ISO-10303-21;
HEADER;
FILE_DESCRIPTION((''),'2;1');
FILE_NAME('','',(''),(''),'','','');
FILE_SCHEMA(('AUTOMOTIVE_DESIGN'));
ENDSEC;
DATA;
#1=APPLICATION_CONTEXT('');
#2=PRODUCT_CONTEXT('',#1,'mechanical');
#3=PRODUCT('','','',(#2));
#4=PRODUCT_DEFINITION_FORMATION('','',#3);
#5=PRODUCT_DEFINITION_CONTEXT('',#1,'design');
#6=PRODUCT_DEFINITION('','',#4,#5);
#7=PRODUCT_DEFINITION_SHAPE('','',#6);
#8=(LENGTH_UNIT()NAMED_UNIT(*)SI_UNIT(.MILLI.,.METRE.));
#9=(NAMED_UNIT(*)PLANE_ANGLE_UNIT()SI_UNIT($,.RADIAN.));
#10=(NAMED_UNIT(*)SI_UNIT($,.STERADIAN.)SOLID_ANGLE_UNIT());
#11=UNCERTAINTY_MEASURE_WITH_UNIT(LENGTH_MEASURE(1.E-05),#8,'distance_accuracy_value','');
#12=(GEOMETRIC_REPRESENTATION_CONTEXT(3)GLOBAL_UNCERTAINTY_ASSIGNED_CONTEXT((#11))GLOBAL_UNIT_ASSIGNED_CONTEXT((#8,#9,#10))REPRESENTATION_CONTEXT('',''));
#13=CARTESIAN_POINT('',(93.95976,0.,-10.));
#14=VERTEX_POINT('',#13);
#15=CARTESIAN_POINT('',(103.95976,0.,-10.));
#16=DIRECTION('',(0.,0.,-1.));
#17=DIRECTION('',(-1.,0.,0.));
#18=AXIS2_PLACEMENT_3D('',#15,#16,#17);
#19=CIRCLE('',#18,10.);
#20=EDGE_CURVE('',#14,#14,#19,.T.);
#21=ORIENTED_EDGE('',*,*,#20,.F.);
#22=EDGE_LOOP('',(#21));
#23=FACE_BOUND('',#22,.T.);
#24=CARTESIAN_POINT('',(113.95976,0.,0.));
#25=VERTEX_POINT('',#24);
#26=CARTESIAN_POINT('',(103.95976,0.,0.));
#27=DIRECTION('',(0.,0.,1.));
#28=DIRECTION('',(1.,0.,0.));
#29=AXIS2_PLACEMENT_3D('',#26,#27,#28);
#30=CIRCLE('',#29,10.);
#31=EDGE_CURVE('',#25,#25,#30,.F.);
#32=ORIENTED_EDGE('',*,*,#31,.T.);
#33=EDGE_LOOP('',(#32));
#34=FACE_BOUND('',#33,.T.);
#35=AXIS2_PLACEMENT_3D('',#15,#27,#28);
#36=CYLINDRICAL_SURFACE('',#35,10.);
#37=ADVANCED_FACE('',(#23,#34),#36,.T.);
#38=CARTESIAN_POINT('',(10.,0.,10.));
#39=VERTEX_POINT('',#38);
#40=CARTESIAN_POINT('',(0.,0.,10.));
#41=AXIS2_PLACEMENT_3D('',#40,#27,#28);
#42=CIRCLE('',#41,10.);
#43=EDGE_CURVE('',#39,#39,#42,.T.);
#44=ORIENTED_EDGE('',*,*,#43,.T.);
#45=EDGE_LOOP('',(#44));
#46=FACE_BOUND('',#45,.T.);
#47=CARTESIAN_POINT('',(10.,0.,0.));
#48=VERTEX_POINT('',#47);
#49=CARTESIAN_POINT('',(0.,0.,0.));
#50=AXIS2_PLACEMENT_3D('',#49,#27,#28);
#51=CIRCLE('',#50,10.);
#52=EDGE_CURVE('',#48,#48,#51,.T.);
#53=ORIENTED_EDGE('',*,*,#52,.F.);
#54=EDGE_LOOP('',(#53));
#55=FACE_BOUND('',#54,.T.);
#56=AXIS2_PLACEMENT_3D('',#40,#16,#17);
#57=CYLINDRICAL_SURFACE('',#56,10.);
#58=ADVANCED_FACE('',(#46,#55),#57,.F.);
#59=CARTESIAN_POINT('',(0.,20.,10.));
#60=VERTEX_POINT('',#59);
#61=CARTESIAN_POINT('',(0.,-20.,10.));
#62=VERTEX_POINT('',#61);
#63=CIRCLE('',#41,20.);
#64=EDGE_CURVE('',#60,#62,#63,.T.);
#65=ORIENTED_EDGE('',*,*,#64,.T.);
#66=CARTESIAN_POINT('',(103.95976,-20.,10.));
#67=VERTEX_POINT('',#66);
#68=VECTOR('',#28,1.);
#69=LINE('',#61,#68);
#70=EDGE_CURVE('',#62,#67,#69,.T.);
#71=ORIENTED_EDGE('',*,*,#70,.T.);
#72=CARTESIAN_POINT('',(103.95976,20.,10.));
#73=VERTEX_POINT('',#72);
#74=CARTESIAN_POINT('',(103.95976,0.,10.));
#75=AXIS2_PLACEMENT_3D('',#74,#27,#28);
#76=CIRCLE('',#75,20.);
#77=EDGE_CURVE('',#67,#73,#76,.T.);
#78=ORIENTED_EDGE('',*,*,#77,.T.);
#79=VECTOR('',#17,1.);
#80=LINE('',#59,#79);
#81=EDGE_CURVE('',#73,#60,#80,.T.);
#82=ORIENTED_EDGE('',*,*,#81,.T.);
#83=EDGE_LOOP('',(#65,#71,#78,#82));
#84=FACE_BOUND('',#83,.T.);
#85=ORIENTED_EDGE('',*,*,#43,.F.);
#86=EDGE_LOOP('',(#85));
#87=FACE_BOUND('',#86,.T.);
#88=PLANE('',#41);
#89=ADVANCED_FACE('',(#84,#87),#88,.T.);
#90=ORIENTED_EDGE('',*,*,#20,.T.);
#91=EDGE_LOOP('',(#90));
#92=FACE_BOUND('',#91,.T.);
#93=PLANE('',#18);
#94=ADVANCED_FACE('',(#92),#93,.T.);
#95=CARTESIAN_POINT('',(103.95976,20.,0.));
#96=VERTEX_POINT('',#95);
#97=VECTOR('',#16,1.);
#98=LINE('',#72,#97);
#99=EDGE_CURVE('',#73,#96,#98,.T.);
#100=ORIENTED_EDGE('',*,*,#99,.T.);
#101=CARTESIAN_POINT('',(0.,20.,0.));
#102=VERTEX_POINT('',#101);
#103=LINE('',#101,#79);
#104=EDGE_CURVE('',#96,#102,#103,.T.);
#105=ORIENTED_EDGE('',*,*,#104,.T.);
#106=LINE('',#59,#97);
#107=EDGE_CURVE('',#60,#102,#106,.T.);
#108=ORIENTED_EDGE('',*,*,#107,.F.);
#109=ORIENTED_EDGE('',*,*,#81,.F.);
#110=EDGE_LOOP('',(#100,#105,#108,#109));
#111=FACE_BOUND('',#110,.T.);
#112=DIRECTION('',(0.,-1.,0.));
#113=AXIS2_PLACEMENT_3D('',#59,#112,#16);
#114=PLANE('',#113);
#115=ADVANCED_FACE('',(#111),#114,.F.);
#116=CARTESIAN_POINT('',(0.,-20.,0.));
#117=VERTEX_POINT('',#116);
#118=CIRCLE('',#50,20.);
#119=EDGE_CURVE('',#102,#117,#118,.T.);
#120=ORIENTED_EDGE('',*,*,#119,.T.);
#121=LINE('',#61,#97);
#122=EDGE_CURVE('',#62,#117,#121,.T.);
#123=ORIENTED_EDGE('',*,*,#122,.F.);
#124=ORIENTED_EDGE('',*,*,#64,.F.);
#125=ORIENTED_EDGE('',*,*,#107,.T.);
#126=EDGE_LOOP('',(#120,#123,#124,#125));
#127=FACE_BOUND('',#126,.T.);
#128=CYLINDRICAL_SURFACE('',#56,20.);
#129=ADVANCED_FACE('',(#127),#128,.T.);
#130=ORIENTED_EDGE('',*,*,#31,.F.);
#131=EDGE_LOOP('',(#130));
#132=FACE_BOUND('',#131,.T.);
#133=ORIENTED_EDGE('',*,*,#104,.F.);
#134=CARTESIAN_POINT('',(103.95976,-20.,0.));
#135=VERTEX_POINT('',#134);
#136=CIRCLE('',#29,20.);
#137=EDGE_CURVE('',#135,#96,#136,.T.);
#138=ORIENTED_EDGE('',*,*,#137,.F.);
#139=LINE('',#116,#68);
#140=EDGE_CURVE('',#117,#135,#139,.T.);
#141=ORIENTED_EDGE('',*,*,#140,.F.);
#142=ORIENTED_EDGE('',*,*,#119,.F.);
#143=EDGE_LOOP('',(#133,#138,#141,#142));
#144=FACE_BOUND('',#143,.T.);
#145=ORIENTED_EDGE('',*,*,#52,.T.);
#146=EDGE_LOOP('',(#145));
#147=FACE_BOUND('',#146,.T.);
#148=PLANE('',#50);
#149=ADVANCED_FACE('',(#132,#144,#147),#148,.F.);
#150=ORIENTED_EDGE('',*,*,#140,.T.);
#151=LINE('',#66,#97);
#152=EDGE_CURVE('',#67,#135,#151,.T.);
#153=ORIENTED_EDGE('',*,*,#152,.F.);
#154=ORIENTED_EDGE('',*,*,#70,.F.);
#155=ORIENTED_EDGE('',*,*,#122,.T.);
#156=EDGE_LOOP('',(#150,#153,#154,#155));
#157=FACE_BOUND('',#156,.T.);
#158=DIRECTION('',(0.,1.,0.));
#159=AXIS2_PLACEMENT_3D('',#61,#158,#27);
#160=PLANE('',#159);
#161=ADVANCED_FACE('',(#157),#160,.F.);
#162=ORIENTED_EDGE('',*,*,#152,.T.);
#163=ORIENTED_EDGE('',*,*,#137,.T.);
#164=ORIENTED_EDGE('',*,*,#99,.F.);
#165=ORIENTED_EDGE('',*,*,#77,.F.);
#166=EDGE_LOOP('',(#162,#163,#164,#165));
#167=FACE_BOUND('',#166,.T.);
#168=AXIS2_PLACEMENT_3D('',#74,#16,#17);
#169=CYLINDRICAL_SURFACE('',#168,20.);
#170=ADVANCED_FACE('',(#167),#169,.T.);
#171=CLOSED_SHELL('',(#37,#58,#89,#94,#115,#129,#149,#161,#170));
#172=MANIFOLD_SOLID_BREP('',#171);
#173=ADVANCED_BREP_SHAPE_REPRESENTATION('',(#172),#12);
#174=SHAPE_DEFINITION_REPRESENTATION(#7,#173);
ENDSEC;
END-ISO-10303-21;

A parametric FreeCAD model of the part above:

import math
import FreeCAD as App
import Part
import Sketcher
Q = App.Units.Quantity

doc = App.newDocument("Part")
body = doc.addObject("PartDesign::Body", "Body")

# Sketch on XY plane
sketch1 = body.newObject("Sketcher::SketchObject", "Sketch")
sketch1.AttachmentSupport = (doc.getObject("XY_Plane"), [""])
sketch1.MapMode = "FlatFace"
sketch1.addGeometry([
    Part.LineSegment(App.Vector(104, 20, 0), App.Vector(0, 20, 0)),  # 0
    Part.ArcOfCircle(Part.Circle(App.Vector(0, 0, 0), App.Vector(0, 0, 1), 20), math.radians(90), math.radians(270)),  # 1
    Part.LineSegment(App.Vector(0, -20, 0), App.Vector(104, -20, 0)),  # 2
    Part.ArcOfCircle(Part.Circle(App.Vector(104, 0, 0), App.Vector(0, 0, 1), 20), math.radians(-90), math.radians(90)),  # 3
    Part.Circle(App.Vector(0, 0, 0), App.Vector(0, 0, 1), 10),  # 4
], False)
sketch1.addConstraint([
    Sketcher.Constraint("Tangent", 0, 2, 1, 1),
    Sketcher.Constraint("Tangent", 1, 2, 2, 1),
    Sketcher.Constraint("Tangent", 2, 2, 3, 1),
    Sketcher.Constraint("Tangent", 3, 2, 0, 1),
    Sketcher.Constraint("Horizontal", 0),
    Sketcher.Constraint("Horizontal", 2),
    Sketcher.Constraint("Coincident", 1, 3, -1, 1),
    Sketcher.Constraint("Coincident", 4, 3, -1, 1),
    Sketcher.Constraint("Diameter", 4, Q("20 mm")),
    Sketcher.Constraint("Radius", 1, Q("20 mm")),
    Sketcher.Constraint("DistanceX", 0, 2, 0, 1, Q("103.95976 mm")),
])
pad1 = body.newObject("PartDesign::Pad", "Pad")
pad1.Profile = sketch1
pad1.Length = 10

# Sketch on XY plane
sketch2 = body.newObject("Sketcher::SketchObject", "Sketch001")
sketch2.AttachmentSupport = (doc.getObject("XY_Plane"), [""])
sketch2.MapMode = "FlatFace"
sketch2.addGeometry(Part.Circle(App.Vector(104, 0, 0), App.Vector(0, 0, 1), 10), False)
sketch2.addConstraint([
    Sketcher.Constraint("PointOnObject", 0, 3, -1),
    Sketcher.Constraint("Diameter", 0, Q("20 mm")),
    Sketcher.Constraint("DistanceX", -1, 1, 0, 3, Q("103.95976 mm")),
])
pad2 = body.newObject("PartDesign::Pad", "Pad001")
pad2.Profile = sketch2
pad2.Length = 10
pad2.Reversed = True

doc.recompute()
